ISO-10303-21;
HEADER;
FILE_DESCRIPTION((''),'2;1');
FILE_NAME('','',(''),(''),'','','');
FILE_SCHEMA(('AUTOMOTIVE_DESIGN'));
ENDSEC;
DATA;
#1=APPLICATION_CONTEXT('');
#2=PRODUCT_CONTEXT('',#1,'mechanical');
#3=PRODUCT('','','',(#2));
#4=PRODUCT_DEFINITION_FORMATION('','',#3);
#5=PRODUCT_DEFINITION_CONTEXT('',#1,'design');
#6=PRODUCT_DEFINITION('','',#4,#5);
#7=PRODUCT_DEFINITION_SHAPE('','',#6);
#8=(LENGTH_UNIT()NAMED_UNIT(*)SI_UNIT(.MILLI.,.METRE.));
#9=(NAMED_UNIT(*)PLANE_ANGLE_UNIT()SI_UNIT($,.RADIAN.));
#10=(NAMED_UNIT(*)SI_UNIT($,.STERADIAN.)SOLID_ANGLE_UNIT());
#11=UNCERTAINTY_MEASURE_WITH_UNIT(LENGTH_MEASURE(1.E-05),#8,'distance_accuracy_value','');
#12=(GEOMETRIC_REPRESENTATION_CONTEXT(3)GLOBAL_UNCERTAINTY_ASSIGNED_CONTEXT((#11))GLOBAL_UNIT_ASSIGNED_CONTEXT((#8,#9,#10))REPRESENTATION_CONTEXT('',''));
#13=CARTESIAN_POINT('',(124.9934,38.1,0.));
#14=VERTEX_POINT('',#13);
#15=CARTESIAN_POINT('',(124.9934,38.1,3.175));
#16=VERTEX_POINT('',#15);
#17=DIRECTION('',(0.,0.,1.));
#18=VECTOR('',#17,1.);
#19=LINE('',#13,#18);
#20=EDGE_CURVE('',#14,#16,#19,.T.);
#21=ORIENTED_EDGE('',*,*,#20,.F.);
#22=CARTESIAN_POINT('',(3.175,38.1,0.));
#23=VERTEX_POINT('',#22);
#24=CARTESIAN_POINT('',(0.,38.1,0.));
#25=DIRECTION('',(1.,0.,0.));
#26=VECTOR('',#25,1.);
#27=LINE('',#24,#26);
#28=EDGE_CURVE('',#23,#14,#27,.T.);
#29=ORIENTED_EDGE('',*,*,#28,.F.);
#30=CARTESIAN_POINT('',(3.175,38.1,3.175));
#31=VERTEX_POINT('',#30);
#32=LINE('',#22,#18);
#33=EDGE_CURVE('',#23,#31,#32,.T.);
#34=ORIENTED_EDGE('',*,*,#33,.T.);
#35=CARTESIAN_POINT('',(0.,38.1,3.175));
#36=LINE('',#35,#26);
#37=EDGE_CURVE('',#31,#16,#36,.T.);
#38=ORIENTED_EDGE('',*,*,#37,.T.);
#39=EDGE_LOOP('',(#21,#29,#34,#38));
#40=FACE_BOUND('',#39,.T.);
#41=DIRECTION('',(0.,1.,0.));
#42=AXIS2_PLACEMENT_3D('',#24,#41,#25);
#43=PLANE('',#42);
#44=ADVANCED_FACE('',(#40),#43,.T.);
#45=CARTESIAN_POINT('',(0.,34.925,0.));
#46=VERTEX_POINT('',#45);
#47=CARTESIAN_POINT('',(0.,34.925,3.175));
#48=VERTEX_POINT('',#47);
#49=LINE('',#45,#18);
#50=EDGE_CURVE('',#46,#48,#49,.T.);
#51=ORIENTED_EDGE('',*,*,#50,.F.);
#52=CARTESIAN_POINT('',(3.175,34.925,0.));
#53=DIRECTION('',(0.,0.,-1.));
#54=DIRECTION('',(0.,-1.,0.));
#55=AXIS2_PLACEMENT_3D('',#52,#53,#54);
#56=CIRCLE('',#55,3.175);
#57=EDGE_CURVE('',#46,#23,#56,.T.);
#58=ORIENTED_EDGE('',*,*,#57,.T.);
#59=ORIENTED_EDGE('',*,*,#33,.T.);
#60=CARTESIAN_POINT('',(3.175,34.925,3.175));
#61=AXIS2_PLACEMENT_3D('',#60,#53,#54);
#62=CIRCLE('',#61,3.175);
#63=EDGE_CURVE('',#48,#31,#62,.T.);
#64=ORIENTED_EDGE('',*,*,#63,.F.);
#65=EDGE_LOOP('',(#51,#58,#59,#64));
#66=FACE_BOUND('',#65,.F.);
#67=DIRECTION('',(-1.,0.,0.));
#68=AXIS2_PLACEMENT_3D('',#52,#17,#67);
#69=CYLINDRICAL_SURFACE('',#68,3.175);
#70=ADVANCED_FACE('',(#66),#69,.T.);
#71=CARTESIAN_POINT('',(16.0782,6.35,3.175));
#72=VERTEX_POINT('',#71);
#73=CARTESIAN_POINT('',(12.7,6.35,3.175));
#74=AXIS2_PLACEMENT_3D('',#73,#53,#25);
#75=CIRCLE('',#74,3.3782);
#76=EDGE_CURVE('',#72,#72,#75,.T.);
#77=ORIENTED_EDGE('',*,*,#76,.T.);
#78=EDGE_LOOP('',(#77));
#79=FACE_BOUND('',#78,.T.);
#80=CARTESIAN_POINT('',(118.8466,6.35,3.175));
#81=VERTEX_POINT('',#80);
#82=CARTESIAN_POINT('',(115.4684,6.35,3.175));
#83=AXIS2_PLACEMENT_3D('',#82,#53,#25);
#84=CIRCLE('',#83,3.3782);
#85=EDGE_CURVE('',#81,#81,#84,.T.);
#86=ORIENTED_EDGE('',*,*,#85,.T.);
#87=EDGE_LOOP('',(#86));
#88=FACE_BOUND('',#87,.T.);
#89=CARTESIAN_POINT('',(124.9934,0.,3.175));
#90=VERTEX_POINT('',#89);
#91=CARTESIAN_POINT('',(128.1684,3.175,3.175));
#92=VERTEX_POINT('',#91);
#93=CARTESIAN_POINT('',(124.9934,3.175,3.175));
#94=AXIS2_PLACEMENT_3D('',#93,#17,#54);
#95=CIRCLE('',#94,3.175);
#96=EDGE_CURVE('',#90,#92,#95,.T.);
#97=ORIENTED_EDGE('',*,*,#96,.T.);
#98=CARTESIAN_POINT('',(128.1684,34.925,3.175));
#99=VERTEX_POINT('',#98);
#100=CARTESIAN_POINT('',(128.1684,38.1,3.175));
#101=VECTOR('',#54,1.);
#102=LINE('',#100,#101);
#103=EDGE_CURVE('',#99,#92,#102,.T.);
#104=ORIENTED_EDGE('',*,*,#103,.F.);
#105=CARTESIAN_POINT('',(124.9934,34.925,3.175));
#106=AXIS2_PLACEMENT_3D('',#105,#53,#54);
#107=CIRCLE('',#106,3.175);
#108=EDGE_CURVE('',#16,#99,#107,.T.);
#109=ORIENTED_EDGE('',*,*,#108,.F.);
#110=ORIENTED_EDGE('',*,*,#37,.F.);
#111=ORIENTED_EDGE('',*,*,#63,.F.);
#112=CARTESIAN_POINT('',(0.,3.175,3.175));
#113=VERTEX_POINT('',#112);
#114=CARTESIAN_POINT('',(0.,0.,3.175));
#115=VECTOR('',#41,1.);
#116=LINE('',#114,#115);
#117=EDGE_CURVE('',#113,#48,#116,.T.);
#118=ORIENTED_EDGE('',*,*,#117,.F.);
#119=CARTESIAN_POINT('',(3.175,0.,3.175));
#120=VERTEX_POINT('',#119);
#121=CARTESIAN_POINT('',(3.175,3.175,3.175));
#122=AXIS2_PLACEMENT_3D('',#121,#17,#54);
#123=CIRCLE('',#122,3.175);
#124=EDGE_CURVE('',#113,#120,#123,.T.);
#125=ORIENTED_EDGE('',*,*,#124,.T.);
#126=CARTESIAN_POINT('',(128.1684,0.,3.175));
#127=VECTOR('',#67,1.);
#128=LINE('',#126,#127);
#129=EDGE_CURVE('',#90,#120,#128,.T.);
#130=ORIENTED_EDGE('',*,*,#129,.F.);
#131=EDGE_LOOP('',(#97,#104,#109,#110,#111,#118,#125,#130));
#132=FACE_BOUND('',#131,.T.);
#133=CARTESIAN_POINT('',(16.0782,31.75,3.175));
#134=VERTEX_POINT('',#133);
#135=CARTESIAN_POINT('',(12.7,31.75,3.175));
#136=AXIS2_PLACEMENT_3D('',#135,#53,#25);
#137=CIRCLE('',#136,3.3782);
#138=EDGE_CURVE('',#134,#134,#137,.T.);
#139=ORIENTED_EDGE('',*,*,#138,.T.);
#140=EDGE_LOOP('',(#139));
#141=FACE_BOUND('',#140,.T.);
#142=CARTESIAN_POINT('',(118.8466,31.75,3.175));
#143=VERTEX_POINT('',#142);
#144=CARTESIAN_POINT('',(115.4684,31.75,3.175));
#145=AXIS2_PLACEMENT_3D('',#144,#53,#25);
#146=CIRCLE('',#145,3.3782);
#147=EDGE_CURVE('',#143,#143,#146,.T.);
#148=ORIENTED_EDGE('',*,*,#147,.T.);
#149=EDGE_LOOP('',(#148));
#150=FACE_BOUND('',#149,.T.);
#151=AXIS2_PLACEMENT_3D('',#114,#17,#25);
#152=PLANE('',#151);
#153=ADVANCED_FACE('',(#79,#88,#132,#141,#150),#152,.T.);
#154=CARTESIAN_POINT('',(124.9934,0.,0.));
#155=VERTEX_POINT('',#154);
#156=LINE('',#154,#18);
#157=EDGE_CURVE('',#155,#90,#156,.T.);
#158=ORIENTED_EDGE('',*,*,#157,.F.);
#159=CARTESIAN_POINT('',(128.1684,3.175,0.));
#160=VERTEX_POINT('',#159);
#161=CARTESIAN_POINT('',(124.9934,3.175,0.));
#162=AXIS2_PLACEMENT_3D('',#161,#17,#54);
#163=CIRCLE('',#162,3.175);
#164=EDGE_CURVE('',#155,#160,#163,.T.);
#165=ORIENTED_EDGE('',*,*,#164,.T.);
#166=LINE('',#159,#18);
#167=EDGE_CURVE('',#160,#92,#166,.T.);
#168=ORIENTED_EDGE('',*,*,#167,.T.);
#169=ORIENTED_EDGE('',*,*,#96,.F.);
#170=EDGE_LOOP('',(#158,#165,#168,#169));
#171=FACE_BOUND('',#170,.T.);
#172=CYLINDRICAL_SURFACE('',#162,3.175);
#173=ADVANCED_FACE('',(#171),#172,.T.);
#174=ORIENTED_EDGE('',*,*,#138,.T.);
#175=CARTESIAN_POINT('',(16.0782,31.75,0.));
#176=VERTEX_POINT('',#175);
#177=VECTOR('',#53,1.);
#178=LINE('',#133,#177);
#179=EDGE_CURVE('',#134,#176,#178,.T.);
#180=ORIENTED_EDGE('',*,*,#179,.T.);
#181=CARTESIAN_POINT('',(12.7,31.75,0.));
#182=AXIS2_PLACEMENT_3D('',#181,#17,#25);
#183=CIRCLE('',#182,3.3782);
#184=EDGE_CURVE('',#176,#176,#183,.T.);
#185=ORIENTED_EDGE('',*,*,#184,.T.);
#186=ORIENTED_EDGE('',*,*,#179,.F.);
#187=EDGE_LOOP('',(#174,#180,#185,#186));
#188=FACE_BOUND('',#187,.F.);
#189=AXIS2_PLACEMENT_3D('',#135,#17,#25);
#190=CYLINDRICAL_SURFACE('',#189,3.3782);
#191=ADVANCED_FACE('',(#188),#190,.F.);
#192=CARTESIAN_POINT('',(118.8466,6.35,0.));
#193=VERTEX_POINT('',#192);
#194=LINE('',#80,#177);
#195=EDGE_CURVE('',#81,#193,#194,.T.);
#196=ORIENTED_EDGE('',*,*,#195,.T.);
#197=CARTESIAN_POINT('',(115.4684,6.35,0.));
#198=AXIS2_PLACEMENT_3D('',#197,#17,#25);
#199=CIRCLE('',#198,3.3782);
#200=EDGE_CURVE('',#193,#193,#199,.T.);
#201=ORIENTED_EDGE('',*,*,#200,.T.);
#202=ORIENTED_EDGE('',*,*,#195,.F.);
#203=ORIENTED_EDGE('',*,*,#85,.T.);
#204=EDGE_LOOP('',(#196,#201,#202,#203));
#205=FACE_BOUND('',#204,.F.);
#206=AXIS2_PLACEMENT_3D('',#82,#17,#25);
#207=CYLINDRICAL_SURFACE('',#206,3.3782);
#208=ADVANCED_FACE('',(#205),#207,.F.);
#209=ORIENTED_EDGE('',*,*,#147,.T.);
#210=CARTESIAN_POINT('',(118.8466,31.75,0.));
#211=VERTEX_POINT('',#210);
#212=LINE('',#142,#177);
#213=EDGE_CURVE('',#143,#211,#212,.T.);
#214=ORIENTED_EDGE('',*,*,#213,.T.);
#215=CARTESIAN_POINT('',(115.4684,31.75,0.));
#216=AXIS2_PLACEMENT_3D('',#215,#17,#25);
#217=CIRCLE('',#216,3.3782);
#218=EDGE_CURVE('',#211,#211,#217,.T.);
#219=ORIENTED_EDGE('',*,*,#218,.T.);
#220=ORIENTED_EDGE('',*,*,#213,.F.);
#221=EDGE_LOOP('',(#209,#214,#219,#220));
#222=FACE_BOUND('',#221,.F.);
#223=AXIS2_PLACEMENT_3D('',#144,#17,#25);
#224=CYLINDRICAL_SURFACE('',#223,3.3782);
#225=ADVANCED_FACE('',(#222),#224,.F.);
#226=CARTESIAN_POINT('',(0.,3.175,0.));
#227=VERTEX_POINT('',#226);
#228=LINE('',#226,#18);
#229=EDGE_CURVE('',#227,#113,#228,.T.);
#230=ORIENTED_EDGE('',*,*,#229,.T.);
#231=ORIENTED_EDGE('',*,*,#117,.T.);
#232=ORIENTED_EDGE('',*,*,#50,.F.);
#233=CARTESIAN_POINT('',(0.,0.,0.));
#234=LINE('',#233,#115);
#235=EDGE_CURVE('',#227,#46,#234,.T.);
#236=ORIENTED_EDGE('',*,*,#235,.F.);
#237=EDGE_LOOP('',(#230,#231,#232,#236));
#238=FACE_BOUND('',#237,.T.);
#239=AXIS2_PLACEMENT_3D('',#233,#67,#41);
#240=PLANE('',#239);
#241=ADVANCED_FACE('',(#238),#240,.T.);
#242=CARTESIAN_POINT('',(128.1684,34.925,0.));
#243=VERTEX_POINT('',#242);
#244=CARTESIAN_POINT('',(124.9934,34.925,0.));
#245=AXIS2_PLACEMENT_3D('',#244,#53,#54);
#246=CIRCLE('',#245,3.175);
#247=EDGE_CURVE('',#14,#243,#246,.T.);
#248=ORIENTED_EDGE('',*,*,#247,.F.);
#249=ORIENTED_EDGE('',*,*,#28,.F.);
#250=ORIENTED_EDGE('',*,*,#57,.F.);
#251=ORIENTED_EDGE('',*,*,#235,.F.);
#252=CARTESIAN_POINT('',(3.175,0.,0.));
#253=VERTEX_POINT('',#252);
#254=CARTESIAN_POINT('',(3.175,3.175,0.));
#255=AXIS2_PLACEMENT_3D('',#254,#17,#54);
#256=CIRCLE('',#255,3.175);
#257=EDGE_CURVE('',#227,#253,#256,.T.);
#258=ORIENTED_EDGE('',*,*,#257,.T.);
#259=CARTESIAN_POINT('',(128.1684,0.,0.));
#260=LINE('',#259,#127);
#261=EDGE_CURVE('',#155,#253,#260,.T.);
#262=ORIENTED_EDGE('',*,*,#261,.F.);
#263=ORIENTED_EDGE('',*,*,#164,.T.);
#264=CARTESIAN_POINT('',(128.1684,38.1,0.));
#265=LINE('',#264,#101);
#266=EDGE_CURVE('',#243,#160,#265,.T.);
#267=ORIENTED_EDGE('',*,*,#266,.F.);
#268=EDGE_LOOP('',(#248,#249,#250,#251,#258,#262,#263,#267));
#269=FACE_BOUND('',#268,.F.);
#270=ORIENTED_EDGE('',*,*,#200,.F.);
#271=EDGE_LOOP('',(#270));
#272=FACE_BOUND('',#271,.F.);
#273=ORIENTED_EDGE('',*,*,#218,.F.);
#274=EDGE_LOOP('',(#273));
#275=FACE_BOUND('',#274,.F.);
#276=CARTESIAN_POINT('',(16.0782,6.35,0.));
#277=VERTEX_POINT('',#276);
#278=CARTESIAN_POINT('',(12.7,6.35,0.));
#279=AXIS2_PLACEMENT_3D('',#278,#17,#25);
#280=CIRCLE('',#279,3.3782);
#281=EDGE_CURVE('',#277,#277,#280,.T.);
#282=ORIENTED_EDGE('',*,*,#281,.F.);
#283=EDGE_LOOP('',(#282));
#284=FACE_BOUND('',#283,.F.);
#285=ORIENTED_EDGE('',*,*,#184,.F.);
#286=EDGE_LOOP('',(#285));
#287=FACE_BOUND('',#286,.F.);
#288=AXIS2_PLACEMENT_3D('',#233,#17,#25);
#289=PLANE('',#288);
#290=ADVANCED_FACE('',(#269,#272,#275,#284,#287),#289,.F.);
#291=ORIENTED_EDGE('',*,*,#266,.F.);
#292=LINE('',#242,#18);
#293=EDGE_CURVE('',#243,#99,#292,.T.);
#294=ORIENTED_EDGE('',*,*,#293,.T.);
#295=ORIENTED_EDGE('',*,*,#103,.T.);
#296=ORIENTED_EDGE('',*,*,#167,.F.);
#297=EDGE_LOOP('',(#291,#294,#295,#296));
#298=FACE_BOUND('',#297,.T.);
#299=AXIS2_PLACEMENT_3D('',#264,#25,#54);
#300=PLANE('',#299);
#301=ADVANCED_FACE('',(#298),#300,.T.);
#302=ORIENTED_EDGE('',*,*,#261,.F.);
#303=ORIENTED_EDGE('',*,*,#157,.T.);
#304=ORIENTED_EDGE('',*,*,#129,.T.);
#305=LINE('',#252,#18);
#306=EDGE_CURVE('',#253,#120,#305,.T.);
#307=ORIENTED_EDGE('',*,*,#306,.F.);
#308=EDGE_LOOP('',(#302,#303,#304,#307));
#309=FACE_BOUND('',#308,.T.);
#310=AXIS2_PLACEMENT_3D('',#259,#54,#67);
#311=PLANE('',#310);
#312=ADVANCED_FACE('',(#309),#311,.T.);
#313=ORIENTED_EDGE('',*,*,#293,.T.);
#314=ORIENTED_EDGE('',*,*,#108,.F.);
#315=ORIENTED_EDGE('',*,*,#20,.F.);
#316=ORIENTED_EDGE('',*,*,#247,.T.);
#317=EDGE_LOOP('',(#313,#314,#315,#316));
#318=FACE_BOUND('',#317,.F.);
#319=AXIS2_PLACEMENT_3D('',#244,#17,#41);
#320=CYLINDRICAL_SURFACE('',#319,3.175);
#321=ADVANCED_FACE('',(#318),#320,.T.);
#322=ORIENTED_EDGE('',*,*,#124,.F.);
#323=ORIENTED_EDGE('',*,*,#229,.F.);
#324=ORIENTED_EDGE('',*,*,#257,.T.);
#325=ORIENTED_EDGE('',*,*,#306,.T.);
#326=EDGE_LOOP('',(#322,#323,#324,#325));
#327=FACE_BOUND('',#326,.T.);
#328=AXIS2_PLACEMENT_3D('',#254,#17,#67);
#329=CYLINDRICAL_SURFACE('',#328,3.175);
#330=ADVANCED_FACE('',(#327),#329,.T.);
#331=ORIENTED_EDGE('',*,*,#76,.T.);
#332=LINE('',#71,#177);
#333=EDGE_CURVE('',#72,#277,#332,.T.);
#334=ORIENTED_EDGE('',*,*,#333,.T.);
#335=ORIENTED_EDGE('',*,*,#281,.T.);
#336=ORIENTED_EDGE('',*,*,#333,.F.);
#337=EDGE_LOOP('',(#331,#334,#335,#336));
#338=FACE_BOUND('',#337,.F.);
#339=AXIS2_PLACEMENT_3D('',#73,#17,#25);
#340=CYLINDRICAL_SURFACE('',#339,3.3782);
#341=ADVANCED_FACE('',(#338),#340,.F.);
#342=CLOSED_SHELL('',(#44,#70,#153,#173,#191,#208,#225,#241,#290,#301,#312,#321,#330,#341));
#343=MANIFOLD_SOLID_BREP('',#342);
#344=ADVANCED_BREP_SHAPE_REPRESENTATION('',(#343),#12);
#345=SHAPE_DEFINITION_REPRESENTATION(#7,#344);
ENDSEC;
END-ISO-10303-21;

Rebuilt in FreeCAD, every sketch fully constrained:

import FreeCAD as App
import Part
import Sketcher
from FreeCAD import Vector
Q = App.Units.Quantity


def edges_at(feature, points):
    """Names of the edges that pass closest to the given points."""
    edges = feature.Shape.Edges
    near = lambda p: min(range(len(edges)), key=lambda i: edges[i].distToShape(Part.Vertex(*p))[0])
    return sorted({f"Edge{near(p) + 1}" for p in points})


def add_polygon(sketch, points):
    """Adds a closed chain of lines whose ends are joined by coincident constraints."""
    first, n = sketch.GeometryCount, len(points)
    for a, b in zip(points, points[1:] + points[:1]):
        sketch.addGeometry(Part.LineSegment(App.Vector(*a, 0), App.Vector(*b, 0)), False)
    for i in range(n):
        sketch.addConstraint(Sketcher.Constraint("Coincident", first + i, 2, first + (i + 1) % n, 1))

doc = App.newDocument("Part")
body = doc.addObject("PartDesign::Body", "Body")

sketch1 = body.newObject("Sketcher::SketchObject", "Sketch")
sketch1.AttachmentSupport = (doc.getObject("XY_Plane"), [""])
sketch1.MapMode = "FlatFace"
add_polygon(sketch1, [(0, 38), (0, 0), (128, 0), (128, 38)])
sketch1.addConstraint([
    Sketcher.Constraint("Vertical", 0),
    Sketcher.Constraint("Horizontal", 1),
    Sketcher.Constraint("Vertical", 2),
    Sketcher.Constraint("Horizontal", 3),
    Sketcher.Constraint("Coincident", 0, 2, -1, 1),
    Sketcher.Constraint("DistanceY", 0, 2, 0, 1, Q("1.5 in")),
    Sketcher.Constraint("DistanceX", 1, 1, 1, 2, Q("5.046 in")),
])
pad1 = body.newObject("PartDesign::Pad", "Pad")
pad1.Profile = sketch1
pad1.Length = Q("0.125 in")

sketch2 = body.newObject("Sketcher::SketchObject", "Sketch001")
sketch2.AttachmentSupport = (doc.getObject("XY_Plane"), [""])
sketch2.MapMode = "FlatFace"
sketch2.AttachmentOffset = App.Placement(Vector(0, 0, 0.125 * 25.4), App.Rotation())
sketch2.addGeometry([
    Part.Circle(Vector(12.7, 6.3, 0), Vector(0, 0, 1), 3.4),
    Part.Circle(Vector(12.7, 31.8, 0), Vector(0, 0, 1), 3.4),
    Part.Circle(Vector(115.5, 6.3, 0), Vector(0, 0, 1), 3.4),
    Part.Circle(Vector(115.5, 31.8, 0), Vector(0, 0, 1), 3.4),
], False)
sketch2.addConstraint([
    Sketcher.Constraint("Equal", 0, 1),
    Sketcher.Constraint("Equal", 1, 2),
    Sketcher.Constraint("Equal", 2, 3),
    Sketcher.Constraint("Horizontal", 0, 3, 2, 3),
    Sketcher.Constraint("Horizontal", 1, 3, 3, 3),
    Sketcher.Constraint("Vertical", 0, 3, 1, 3),
    Sketcher.Constraint("Vertical", 2, 3, 3, 3),
    Sketcher.Constraint("Diameter", 0, Q("0.266 in")),
    Sketcher.Constraint("DistanceY", 0, 3, 1, 3, Q("1 in")),
    Sketcher.Constraint("DistanceX", -1, 1, 0, 3, Q("0.5 in")),
    Sketcher.Constraint("DistanceY", -1, 1, 0, 3, Q("0.25 in")),
    Sketcher.Constraint("DistanceX", -1, 1, 2, 3, Q("4.546 in")),
])
pocket1 = body.newObject("PartDesign::Pocket", "Pocket")
pocket1.Profile = sketch2
pocket1.Length = Q("0.125 in")
doc.recompute()

fillet = body.newObject("PartDesign::Fillet", "Fillet")
fillet.Base = (pocket1, edges_at(pocket1, [
    (128.168, 38.1, 1.587),
    (128.168, 0, 1.587),
    (0, 38.1, 1.587),
    (0, 0, 1.587),
]))
fillet.Radius = Q("0.125 in")

doc.recompute()
